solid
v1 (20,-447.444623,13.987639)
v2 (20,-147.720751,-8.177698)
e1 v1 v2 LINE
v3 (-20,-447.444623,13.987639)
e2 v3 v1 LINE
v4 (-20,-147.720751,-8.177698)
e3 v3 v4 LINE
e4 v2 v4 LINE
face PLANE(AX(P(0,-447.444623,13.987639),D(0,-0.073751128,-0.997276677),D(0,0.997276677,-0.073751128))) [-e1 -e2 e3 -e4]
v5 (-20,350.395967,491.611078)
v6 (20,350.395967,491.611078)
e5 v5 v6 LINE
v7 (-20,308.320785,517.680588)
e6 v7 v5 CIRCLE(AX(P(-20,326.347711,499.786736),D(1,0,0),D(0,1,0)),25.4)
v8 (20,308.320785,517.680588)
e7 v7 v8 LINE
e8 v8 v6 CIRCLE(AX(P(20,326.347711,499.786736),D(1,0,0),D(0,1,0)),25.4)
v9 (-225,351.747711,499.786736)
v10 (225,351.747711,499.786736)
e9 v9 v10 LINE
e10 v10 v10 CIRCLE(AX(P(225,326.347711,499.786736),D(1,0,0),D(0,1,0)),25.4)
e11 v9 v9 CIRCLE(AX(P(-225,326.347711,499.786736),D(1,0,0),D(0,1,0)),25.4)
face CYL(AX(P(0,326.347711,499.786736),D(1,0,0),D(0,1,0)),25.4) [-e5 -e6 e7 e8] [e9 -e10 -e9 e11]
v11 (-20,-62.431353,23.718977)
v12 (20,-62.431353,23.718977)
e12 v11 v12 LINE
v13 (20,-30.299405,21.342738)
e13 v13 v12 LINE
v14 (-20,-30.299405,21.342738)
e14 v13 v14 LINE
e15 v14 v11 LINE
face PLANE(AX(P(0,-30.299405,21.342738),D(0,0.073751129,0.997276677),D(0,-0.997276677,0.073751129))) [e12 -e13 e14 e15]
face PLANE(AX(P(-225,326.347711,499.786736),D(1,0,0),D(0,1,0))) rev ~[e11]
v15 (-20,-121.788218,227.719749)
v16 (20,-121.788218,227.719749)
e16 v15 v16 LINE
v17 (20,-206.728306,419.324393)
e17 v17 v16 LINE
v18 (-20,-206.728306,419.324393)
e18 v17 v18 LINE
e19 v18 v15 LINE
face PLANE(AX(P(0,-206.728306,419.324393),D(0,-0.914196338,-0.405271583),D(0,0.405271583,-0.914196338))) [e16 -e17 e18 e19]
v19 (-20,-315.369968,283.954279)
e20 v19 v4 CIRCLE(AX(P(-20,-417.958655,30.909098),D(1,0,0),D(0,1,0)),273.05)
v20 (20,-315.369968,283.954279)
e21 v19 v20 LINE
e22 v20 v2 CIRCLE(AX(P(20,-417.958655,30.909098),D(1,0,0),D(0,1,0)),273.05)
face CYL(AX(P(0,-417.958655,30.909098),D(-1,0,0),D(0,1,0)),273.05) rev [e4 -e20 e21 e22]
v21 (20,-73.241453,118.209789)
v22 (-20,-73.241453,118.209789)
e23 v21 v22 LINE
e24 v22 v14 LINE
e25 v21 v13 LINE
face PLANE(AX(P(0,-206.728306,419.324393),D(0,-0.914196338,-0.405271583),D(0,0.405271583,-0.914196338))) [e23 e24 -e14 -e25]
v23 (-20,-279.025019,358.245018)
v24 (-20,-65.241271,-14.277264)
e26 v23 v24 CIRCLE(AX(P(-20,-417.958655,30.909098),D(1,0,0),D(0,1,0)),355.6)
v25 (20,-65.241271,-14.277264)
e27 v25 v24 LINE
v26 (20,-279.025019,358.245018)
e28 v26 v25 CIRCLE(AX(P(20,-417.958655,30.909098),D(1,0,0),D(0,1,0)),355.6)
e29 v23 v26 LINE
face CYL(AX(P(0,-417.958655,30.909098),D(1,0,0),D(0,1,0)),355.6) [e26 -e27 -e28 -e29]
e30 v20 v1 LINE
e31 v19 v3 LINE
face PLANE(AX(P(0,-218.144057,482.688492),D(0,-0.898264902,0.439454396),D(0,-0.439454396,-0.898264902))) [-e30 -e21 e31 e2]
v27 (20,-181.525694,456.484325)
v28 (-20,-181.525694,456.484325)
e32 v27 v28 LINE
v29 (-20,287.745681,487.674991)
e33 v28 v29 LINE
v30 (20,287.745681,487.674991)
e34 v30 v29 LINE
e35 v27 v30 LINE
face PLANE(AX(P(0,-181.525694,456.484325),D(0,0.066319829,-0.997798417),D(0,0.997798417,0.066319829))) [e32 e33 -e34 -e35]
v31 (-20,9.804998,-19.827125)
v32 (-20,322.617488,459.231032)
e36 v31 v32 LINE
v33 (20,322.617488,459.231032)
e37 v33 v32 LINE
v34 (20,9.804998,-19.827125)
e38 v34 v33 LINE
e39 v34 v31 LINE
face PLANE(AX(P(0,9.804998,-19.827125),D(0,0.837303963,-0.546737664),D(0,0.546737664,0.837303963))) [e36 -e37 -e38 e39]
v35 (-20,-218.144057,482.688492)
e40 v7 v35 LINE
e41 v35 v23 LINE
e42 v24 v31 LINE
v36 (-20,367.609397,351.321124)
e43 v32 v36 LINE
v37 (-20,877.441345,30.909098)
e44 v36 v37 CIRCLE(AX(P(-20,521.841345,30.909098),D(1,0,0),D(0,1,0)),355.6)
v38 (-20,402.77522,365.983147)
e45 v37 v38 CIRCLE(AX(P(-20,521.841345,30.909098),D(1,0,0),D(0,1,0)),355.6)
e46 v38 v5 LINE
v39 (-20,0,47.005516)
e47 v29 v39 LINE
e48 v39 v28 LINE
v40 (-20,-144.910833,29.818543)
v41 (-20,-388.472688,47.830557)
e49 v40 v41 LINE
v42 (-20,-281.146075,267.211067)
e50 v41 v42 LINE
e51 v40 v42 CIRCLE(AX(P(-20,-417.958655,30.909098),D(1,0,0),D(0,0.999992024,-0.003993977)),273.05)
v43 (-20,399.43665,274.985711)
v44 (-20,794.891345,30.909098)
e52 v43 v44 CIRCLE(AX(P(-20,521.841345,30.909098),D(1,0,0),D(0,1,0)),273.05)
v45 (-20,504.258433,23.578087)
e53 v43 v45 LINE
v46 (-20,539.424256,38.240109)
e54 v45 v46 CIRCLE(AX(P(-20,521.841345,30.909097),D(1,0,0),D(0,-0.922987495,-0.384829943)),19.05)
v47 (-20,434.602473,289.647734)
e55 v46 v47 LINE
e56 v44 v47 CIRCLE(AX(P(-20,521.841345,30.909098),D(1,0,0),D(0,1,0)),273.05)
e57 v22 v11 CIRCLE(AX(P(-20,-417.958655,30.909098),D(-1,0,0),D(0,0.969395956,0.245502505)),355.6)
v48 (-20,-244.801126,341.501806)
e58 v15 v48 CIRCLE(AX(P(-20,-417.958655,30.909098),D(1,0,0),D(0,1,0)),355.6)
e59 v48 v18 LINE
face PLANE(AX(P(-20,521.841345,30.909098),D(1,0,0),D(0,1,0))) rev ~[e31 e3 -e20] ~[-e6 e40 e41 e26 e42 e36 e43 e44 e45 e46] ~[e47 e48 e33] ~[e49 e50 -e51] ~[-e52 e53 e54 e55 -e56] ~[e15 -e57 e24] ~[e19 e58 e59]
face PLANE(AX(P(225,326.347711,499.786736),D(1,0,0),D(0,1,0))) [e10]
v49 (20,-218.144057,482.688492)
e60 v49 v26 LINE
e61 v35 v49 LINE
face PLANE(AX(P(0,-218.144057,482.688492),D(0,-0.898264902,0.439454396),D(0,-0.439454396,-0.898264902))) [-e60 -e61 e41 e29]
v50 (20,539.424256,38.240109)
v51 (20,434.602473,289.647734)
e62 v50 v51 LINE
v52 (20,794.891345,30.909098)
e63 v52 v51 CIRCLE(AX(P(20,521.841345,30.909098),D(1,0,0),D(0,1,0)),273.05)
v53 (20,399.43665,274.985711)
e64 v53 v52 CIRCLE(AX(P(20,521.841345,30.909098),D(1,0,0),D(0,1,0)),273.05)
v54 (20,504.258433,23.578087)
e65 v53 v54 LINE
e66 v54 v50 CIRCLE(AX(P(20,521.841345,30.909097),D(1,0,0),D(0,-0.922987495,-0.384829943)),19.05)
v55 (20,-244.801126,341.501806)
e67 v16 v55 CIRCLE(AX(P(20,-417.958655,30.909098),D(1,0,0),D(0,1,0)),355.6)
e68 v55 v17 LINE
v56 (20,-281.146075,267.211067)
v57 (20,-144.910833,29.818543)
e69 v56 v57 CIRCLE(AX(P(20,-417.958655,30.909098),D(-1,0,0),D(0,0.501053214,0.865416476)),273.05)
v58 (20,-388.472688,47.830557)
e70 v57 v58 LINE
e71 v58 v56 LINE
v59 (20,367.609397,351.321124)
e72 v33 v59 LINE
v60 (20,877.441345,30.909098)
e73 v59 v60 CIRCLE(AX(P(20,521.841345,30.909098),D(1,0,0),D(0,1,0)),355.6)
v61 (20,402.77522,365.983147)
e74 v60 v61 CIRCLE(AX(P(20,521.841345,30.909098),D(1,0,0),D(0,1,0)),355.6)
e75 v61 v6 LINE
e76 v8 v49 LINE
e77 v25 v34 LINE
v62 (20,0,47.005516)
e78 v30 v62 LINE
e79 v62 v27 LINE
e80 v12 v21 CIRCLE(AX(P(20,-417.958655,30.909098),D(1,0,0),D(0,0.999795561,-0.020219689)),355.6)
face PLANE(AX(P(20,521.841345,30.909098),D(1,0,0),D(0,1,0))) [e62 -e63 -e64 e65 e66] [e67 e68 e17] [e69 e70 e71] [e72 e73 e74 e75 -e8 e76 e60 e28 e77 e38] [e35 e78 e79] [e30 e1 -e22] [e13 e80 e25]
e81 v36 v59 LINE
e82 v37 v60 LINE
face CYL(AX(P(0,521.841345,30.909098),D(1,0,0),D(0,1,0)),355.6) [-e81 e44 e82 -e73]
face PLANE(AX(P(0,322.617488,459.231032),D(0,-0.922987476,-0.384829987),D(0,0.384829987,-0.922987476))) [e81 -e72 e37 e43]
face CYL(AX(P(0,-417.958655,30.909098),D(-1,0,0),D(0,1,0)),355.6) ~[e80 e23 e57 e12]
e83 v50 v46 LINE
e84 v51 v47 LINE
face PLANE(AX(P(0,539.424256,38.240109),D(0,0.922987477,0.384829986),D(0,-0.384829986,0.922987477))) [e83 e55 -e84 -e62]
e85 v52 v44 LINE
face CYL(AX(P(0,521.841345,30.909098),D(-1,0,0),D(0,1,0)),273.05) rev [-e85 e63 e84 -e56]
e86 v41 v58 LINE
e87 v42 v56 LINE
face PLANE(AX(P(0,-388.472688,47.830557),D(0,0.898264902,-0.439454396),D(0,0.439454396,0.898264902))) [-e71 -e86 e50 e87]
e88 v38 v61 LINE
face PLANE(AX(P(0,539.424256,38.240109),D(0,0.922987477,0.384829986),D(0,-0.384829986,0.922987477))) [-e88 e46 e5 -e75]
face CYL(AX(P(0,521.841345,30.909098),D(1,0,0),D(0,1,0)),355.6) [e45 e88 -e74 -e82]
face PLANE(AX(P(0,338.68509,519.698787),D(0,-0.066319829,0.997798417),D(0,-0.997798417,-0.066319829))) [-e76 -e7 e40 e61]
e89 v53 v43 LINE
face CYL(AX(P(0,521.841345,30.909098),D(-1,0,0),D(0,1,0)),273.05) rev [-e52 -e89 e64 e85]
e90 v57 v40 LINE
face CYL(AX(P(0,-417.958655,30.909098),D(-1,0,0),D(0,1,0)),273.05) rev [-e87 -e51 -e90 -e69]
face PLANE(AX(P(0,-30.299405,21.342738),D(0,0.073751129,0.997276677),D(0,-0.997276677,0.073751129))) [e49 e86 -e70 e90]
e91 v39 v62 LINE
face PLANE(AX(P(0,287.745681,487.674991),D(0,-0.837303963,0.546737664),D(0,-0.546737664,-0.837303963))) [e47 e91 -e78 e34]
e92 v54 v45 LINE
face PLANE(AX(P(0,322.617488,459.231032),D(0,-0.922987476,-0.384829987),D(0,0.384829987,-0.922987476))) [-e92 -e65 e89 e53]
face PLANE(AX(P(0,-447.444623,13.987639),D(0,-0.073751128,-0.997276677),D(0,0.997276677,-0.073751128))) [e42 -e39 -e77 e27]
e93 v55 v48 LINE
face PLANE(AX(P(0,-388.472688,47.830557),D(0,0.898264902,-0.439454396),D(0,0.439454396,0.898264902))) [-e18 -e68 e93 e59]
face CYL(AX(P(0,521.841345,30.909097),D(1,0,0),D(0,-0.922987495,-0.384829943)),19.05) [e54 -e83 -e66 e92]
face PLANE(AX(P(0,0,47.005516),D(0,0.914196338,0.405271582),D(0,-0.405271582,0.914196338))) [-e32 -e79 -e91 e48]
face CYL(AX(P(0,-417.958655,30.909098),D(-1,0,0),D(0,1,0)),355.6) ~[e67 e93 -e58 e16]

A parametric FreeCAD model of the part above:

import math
import FreeCAD as App
import Part
import Sketcher
from FreeCAD import Vector
Q = App.Units.Quantity

doc = App.newDocument("Part")
params = doc.addObject("Spreadsheet::Sheet", "Params")
for row, (alias, value) in enumerate([
    ("sketch1_radius", "0.75 in"),
    ("pad1_length", "40 mm"),
    ("sketch2_diameter", "28 in"),
    ("sketch2_diameter2", "21.5 in"),
    ("pad2_length", "40 mm"),
    ("sketch3_diameter", "2 in"),
    ("pad3_length", "450 mm"),
], start=1):
    params.set(f"A{row}", alias)
    params.set(f"B{row}", "=" + value)
    params.setAlias(f"B{row}", alias)

body = doc.addObject("PartDesign::Body", "Body")

# Sketch on YZ plane
sketch1 = body.newObject("Sketcher::SketchObject", "Sketch")
sketch1.AttachmentSupport = (doc.getObject("YZ_Plane"), [""])
sketch1.MapMode = "FlatFace"
sketch1.addGeometry([
    Part.LineSegment(Vector(539, 38, 0), Vector(339, 520, 0)),  # 0
    Part.LineSegment(Vector(339, 520, 0), Vector(-218, 483, 0)),  # 1
    Part.LineSegment(Vector(-218, 483, 0), Vector(-447, 14, 0)),  # 2
    Part.LineSegment(Vector(-447, 14, 0), Vector(10, -20, 0)),  # 3
    Part.LineSegment(Vector(10, -20, 0), Vector(323, 459, 0)),  # 4
    Part.LineSegment(Vector(323, 459, 0), Vector(504, 24, 0)),  # 5
    Part.ArcOfCircle(Part.Circle(Vector(522, 31, 0), Vector(0, 0, 1), 19), math.radians(-157), math.radians(23)),  # 6
    Part.LineSegment(Vector(-30, 21, 0), Vector(-388, 48, 0)),  # 7
    Part.LineSegment(Vector(-388, 48, 0), Vector(-207, 419, 0)),  # 8
    Part.LineSegment(Vector(-207, 419, 0), Vector(-30, 21, 0)),  # 9
    Part.LineSegment(Vector(288, 488, 0), Vector(0, 47, 0)),  # 10
    Part.LineSegment(Vector(0, 47, 0), Vector(-182, 456, 0)),  # 11
    Part.LineSegment(Vector(-182, 456, 0), Vector(288, 488, 0)),  # 12
], False)
sketch1.addConstraint([
    Sketcher.Constraint("Coincident", 0, 2, 1, 1),
    Sketcher.Constraint("Coincident", 1, 2, 2, 1),
    Sketcher.Constraint("Coincident", 2, 2, 3, 1),
    Sketcher.Constraint("Coincident", 3, 2, 4, 1),
    Sketcher.Constraint("Coincident", 4, 2, 5, 1),
    Sketcher.Constraint("Tangent", 5, 2, 6, 1),
    Sketcher.Constraint("Tangent", 6, 2, 0, 1),
    Sketcher.Constraint("Coincident", 7, 2, 8, 1),
    Sketcher.Constraint("Coincident", 8, 2, 9, 1),
    Sketcher.Constraint("Coincident", 9, 2, 7, 1),
    Sketcher.Constraint("Coincident", 10, 2, 11, 1),
    Sketcher.Constraint("Coincident", 11, 2, 12, 1),
    Sketcher.Constraint("Coincident", 12, 2, 10, 1),
    Sketcher.Constraint("PointOnObject", 10, 2, -2),
    Sketcher.Constraint("Parallel", 0, 5),
    Sketcher.Constraint("Parallel", 3, 7),
    Sketcher.Constraint("Parallel", 2, 8),
    Sketcher.Constraint("Parallel", 4, 10),
    Sketcher.Constraint("Parallel", 9, 11),
    Sketcher.Constraint("Parallel", 1, 12),
    Sketcher.Constraint("Radius", 6, Q("0.75 in")),
    Sketcher.Constraint("Distance", 10, 526.295699),
    Sketcher.Constraint("DistanceX", 1, 2, 6, 3, 739.985402),
    Sketcher.Constraint("DistanceY", 5, 2, 0, 2, 496.1207),
    Sketcher.Constraint("DistanceY", 8, 2, 1, 2, 63.364099),
    Sketcher.Constraint("DistanceY", 2, 2, 9, 2, 7.355099),
    Sketcher.Constraint("DistanceX", 8, 2, 9, 2, 176.428901),
    Sketcher.Constraint("DistanceY", 1, 2, 12, 2, 4.986499),
    Sketcher.Constraint("Distance", 0, 521.630781),
    Sketcher.Constraint("Distance", 3, 458.49826),
    Sketcher.Constraint("Distance", 7, 359.151368),
    Sketcher.Constraint("Distance", 8, 413.568242),
    Sketcher.Constraint("Distance", 9, 435.334992),
    Sketcher.Constraint("DistanceX", -1, 1, 0, 2, 338.68509),
    Sketcher.Constraint("DistanceY", -1, 1, 1, 2, 482.688492),
    Sketcher.Constraint("DistanceX", -1, 1, 4, 2, 322.617488),
    Sketcher.Constraint("DistanceY", -1, 1, 6, 2, 38.240109),
    Sketcher.Constraint("DistanceX", 7, 2, -1, 1, 388.472688),
])
sketch1.setExpression("Constraints[20]", "Params.sketch1_radius")
pad1 = body.newObject("PartDesign::Pad", "Pad")
pad1.Profile = sketch1
pad1.setExpression("Length", "Params.pad1_length")
pad1.Midplane = True

# Sketch on YZ plane
sketch2 = body.newObject("Sketcher::SketchObject", "Sketch001")
sketch2.AttachmentSupport = (doc.getObject("YZ_Plane"), [""])
sketch2.MapMode = "FlatFace"
sketch2.addGeometry([
    Part.Circle(Vector(-418, 31, 0), Vector(0, 0, 1), 356),
    Part.Circle(Vector(-418, 31, 0), Vector(0, 0, 1), 273),
    Part.Circle(Vector(522, 31, 0), Vector(0, 0, 1), 356),
    Part.Circle(Vector(522, 31, 0), Vector(0, 0, 1), 273),
], False)
sketch2.addConstraint([
    Sketcher.Constraint("Coincident", 1, 3, 0, 3),
    Sketcher.Constraint("Coincident", 3, 3, 2, 3),
    Sketcher.Constraint("Equal", 0, 2),
    Sketcher.Constraint("Equal", 1, 3),
    Sketcher.Constraint("Horizontal", 1, 3, 2, 3),
    Sketcher.Constraint("Diameter", 0, Q("28 in")),
    Sketcher.Constraint("Diameter", 1, Q("21.5 in")),
    Sketcher.Constraint("DistanceX", 0, 3, 2, 3, Q("37 in")),
    Sketcher.Constraint("DistanceY", -1, 1, 0, 3, 30.909098),
    Sketcher.Constraint("DistanceX", 0, 3, -1, 1, 417.958655),
])
sketch2.setExpression("Constraints[5]", "Params.sketch2_diameter")
sketch2.setExpression("Constraints[6]", "Params.sketch2_diameter2")
pad2 = body.newObject("PartDesign::Pad", "Pad001")
pad2.Profile = sketch2
pad2.setExpression("Length", "Params.pad2_length")
pad2.Midplane = True

# Sketch on YZ plane
sketch3 = body.newObject("Sketcher::SketchObject", "Sketch002")
sketch3.AttachmentSupport = (doc.getObject("YZ_Plane"), [""])
sketch3.MapMode = "FlatFace"
sketch3.addGeometry(Part.Circle(Vector(326, 500, 0), Vector(0, 0, 1), 25), False)
sketch3.addConstraint([
    Sketcher.Constraint("Diameter", 0, Q("2 in")),
    Sketcher.Constraint("DistanceX", -1, 1, 0, 3, 326.347711),
    Sketcher.Constraint("DistanceY", -1, 1, 0, 3, 499.786736),
])
sketch3.setExpression("Constraints[0]", "Params.sketch3_diameter")
pad3 = body.newObject("PartDesign::Pad", "Pad002")
pad3.Profile = sketch3
pad3.setExpression("Length", "Params.pad3_length")
pad3.Midplane = True

doc.recompute()
